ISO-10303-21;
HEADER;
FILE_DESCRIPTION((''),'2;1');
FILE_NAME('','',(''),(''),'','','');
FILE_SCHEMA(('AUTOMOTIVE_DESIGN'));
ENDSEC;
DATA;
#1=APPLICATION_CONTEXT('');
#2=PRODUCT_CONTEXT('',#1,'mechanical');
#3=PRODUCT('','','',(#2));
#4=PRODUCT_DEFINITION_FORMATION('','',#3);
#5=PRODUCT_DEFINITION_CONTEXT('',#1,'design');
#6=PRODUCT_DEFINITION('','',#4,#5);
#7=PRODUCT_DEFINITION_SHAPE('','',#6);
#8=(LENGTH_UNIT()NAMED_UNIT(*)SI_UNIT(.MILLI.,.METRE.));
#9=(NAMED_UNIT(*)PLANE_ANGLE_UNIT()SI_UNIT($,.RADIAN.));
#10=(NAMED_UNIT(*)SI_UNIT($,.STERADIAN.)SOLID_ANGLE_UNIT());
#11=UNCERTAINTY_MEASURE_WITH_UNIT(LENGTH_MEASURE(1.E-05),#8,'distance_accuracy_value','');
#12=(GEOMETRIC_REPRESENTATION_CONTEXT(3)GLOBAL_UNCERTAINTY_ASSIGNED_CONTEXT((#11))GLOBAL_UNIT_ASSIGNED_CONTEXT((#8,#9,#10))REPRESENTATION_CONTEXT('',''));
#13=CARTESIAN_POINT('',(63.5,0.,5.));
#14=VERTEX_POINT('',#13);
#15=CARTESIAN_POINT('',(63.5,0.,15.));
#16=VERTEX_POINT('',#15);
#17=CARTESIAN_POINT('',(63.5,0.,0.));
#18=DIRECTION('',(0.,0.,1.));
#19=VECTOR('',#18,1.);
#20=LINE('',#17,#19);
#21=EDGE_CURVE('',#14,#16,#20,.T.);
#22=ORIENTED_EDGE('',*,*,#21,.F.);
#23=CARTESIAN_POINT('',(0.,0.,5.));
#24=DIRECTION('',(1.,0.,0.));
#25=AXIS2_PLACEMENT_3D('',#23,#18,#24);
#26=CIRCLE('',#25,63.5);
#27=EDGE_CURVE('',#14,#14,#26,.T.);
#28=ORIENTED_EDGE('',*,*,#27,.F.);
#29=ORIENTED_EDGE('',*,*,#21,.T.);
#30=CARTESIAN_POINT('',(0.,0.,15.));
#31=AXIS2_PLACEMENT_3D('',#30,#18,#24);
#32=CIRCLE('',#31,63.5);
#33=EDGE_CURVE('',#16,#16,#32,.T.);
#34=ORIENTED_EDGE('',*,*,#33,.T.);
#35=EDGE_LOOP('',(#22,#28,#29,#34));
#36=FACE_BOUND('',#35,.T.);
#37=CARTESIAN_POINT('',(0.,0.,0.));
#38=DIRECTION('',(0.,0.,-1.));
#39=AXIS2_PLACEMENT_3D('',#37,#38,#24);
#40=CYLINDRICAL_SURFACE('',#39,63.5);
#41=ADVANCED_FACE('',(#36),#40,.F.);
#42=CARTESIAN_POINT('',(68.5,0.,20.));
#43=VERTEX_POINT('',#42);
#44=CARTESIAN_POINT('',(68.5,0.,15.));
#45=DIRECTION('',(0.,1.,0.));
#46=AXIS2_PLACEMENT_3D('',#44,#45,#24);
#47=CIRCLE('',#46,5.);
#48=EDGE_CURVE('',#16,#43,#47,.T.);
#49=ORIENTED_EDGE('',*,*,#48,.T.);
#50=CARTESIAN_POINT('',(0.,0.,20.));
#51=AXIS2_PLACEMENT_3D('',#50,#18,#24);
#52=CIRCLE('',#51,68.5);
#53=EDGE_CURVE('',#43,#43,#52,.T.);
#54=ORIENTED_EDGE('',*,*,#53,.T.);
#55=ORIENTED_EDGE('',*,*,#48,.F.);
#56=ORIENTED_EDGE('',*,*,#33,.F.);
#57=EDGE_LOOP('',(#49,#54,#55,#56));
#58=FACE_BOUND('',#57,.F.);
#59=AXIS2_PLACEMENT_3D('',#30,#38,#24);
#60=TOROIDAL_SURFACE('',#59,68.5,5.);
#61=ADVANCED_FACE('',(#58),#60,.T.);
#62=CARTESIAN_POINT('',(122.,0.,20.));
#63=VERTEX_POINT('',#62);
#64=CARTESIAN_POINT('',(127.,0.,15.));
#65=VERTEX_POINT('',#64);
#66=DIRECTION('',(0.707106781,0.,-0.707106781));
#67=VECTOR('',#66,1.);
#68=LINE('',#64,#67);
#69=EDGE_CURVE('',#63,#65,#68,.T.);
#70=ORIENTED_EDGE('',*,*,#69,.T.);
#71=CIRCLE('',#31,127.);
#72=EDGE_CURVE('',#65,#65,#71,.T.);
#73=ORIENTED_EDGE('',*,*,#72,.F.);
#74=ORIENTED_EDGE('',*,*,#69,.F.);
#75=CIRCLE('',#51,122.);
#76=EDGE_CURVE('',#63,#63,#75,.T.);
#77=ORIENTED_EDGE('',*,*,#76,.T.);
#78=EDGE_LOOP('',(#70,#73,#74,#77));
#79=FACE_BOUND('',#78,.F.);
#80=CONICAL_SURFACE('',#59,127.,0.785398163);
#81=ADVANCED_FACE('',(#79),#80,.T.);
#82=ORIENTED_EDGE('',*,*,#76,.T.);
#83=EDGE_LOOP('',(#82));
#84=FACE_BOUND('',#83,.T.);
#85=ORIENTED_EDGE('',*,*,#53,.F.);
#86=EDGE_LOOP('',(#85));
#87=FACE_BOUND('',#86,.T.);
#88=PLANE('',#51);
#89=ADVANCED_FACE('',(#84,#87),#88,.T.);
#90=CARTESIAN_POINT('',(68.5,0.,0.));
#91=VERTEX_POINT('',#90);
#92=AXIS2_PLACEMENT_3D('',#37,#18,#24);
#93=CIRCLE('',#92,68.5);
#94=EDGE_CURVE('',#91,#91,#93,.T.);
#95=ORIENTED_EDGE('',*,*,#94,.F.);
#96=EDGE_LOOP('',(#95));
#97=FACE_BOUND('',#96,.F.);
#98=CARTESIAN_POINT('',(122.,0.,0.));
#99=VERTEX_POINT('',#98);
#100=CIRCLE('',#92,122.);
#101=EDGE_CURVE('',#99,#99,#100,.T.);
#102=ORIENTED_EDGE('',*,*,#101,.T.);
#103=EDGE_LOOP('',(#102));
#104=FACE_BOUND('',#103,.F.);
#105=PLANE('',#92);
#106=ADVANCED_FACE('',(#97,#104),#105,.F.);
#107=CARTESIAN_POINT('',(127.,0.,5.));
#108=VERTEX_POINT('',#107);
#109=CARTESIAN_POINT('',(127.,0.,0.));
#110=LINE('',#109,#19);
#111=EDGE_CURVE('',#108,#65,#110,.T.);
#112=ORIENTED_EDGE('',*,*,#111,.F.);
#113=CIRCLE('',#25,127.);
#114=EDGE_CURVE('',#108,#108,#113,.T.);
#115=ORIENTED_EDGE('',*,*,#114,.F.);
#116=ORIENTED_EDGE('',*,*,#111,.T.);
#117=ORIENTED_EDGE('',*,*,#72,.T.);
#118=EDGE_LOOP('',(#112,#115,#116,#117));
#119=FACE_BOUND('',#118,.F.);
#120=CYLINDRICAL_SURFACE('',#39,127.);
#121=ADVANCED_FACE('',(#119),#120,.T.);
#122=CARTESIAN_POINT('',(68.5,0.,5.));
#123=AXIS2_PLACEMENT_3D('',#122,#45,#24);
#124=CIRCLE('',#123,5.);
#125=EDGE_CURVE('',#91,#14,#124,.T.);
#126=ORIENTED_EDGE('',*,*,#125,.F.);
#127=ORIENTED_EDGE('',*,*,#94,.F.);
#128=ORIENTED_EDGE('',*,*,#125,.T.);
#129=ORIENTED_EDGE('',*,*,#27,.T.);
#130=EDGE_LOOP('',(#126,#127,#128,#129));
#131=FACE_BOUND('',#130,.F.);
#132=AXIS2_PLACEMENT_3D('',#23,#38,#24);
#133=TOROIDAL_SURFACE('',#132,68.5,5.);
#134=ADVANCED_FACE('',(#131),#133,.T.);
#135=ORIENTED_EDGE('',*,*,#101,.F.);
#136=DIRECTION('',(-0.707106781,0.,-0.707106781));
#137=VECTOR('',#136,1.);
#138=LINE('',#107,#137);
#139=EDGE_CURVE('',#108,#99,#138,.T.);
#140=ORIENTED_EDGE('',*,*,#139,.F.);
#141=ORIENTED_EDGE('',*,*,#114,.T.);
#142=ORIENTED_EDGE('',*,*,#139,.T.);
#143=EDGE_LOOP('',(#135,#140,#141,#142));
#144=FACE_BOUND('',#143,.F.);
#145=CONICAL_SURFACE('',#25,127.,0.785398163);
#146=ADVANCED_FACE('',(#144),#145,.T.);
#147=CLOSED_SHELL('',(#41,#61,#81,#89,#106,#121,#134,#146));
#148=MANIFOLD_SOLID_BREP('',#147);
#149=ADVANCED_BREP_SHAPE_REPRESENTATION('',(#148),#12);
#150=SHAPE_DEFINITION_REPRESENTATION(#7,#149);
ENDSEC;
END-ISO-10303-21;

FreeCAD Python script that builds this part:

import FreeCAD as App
import Part
import Sketcher


def edges_at(feature, points):
    """Names of the edges that pass closest to the given points."""
    edges = feature.Shape.Edges
    near = lambda p: min(range(len(edges)), key=lambda i: edges[i].distToShape(Part.Vertex(*p))[0])
    return sorted({f"Edge{near(p) + 1}" for p in points})

doc = App.newDocument("Part")
body = doc.addObject("PartDesign::Body", "Body")

# Sketch on XY plane
sketch1 = doc.addObject("Sketcher::SketchObject", "Sketch")
body.addObject(sketch1)
sketch1.AttachmentSupport = (doc.XY_Plane, [""])
sketch1.MapMode = "FlatFace"
sketch1.addGeometry(Part.Circle(App.Vector(0, 0, 0), App.Vector(0, 0, 1), 127), False)
sketch1.addGeometry(Part.Circle(App.Vector(0, 0, 0), App.Vector(0, 0, 1), 64), False)
sketch1.addConstraint(Sketcher.Constraint("Coincident", 0, 3, -1, 1))
sketch1.addConstraint(Sketcher.Constraint("Coincident", 1, 3, -1, 1))
sketch1.addConstraint(Sketcher.Constraint("Diameter", 0, 254.0))
sketch1.addConstraint(Sketcher.Constraint("Diameter", 1, 127.0))
pad1 = doc.addObject("PartDesign::Pad", "Pad")
body.addObject(pad1)
pad1.Profile = sketch1
pad1.Length = 20
doc.recompute()

fillet = doc.addObject("PartDesign::Fillet", "Fillet")
body.addObject(fillet)
fillet.Base = (pad1, edges_at(pad1, [(-63.5, 0, 20)]))
fillet.Radius = 5
doc.recompute()

chamfer = doc.addObject("PartDesign::Chamfer", "Chamfer")
body.addObject(chamfer)
chamfer.Base = (fillet, edges_at(fillet, [(-127, 0, 20)]))
chamfer.Size = 5
doc.recompute()

chamfer2 = doc.addObject("PartDesign::Chamfer", "Chamfer001")
body.addObject(chamfer2)
chamfer2.Base = (chamfer, edges_at(chamfer, [(-127, 0, 0)]))
chamfer2.Size = 5
doc.recompute()

fillet2 = doc.addObject("PartDesign::Fillet", "Fillet001")
body.addObject(fillet2)
fillet2.Base = (chamfer2, edges_at(chamfer2, [(-63.5, 0, 0)]))
fillet2.Radius = 5

doc.recompute()
